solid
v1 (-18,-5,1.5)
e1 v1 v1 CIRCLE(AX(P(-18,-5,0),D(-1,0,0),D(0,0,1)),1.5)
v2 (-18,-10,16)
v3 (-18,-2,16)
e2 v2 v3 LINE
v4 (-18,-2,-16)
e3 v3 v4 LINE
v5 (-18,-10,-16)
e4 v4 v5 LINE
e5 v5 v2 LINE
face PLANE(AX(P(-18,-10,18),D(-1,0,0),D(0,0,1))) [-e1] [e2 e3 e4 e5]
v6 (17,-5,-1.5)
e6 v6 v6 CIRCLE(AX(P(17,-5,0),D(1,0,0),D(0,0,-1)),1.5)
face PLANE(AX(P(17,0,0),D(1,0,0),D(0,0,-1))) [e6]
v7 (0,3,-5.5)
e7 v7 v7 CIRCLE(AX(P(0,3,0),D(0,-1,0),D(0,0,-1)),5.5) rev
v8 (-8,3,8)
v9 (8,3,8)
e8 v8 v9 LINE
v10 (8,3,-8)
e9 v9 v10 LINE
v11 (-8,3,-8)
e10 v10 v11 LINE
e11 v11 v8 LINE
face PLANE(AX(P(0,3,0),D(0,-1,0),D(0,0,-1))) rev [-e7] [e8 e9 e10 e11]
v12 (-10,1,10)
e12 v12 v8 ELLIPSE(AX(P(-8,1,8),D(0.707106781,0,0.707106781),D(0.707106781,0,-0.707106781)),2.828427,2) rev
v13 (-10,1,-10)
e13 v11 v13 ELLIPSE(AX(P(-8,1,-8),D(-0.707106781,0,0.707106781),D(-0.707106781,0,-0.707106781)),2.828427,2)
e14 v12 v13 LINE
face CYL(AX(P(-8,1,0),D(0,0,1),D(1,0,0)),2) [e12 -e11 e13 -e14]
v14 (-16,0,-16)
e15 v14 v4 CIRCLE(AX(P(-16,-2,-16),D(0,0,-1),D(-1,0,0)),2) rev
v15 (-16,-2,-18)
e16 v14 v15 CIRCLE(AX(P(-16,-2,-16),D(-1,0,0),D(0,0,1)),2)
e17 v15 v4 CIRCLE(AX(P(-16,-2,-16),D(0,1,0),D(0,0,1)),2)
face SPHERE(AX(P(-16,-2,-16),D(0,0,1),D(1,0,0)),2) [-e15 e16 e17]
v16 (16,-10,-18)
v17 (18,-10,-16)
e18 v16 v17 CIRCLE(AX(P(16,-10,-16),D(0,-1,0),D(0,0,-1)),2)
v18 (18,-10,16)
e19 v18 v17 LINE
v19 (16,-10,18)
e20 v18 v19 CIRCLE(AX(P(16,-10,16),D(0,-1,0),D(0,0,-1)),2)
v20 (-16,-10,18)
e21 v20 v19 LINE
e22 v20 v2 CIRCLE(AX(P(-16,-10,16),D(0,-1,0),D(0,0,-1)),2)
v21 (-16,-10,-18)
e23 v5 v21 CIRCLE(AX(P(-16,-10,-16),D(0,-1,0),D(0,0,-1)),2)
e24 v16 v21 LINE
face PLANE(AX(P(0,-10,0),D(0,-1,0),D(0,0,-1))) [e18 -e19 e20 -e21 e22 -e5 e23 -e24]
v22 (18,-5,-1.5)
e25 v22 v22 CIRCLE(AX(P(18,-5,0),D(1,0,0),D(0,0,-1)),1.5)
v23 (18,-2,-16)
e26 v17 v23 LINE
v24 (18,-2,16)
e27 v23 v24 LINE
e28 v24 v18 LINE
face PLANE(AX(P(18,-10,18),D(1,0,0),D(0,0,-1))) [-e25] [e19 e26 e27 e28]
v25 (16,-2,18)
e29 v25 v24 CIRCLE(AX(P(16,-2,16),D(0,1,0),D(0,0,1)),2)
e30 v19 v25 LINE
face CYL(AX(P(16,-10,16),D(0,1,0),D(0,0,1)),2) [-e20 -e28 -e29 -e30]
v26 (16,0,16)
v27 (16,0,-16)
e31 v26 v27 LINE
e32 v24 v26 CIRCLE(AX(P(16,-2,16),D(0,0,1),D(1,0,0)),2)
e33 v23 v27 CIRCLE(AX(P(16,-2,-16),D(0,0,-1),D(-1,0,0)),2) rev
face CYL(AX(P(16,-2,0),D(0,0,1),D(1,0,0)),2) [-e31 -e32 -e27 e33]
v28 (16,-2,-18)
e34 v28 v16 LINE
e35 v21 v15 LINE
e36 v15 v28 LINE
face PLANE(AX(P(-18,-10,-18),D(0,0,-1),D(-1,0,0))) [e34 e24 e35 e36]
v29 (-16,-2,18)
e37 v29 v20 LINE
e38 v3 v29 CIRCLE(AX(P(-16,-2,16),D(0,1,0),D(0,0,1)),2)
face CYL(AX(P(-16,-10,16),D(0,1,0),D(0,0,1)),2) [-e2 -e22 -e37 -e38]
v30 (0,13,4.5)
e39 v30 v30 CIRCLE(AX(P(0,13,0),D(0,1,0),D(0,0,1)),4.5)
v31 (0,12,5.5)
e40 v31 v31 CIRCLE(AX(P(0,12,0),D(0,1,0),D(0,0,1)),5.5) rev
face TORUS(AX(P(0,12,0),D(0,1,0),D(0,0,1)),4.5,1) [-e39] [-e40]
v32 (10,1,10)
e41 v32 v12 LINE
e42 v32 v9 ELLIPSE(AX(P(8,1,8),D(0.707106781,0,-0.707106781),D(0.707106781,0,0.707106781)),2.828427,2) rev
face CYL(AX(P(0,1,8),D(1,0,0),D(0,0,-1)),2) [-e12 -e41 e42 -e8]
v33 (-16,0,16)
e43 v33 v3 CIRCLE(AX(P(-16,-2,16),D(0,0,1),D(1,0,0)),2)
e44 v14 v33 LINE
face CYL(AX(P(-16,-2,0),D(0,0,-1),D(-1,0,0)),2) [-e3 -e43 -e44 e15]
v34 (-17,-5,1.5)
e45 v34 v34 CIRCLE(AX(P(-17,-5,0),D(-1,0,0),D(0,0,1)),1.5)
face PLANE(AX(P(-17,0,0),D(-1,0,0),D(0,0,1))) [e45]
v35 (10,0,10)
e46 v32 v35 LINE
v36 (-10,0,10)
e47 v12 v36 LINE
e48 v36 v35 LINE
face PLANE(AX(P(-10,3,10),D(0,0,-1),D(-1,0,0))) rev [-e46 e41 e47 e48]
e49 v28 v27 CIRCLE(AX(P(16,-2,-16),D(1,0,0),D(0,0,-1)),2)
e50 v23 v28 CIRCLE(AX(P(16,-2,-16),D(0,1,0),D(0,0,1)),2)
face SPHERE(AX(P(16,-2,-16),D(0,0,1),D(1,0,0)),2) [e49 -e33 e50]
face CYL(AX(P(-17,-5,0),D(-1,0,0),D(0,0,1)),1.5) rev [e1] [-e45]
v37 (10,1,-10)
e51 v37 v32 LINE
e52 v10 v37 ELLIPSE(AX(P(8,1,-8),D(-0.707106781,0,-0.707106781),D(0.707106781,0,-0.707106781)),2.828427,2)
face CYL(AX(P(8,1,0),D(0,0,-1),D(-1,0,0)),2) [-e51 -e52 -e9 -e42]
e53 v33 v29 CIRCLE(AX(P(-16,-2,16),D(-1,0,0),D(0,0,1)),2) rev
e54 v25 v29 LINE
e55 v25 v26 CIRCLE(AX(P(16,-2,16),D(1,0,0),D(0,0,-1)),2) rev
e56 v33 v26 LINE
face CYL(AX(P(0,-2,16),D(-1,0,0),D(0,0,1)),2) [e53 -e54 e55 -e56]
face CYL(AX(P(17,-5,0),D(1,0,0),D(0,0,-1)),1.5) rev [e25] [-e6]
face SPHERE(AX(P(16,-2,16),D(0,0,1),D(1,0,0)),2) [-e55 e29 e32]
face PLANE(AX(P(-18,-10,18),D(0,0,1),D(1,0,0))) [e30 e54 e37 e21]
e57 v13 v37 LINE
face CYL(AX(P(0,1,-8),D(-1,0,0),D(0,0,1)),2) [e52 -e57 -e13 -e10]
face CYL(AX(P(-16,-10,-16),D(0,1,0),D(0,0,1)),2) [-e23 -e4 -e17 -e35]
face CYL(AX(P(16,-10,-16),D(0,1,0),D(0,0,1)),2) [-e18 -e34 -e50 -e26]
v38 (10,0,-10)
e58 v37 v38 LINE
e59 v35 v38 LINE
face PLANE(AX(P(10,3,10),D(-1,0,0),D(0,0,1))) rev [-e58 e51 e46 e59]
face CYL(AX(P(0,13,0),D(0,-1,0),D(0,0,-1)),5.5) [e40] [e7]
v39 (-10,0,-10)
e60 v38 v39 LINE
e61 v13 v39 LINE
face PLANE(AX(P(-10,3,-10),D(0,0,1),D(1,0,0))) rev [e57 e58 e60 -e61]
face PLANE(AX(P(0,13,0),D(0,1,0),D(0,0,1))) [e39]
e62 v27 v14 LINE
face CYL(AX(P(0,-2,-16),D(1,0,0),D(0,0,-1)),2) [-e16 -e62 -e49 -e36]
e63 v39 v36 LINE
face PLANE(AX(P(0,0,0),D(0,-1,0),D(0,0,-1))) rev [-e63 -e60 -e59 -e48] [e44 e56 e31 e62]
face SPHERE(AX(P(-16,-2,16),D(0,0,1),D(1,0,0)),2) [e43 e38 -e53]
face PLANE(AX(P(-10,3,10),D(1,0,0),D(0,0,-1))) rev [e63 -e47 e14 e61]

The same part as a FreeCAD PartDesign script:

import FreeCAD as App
import Part
import Sketcher
from FreeCAD import Vector


def edges_at(feature, points):
    """Names of the edges that pass closest to the given points."""
    edges = feature.Shape.Edges
    near = lambda p: min(range(len(edges)), key=lambda i: edges[i].distToShape(Part.Vertex(*p))[0])
    return sorted({f"Edge{near(p) + 1}" for p in points})


def add_polygon(sketch, points):
    """Adds a closed chain of lines whose ends are joined by coincident constraints."""
    first, n = sketch.GeometryCount, len(points)
    for a, b in zip(points, points[1:] + points[:1]):
        sketch.addGeometry(Part.LineSegment(App.Vector(*a, 0), App.Vector(*b, 0)), False)
    for i in range(n):
        sketch.addConstraint(Sketcher.Constraint("Coincident", first + i, 2, first + (i + 1) % n, 1))

doc = App.newDocument("Part")
body = doc.addObject("PartDesign::Body", "Body")

# Sketch on XZ plane
sketch1 = doc.addObject("Sketcher::SketchObject", "Sketch")
body.addObject(sketch1)
sketch1.AttachmentSupport = (doc.XZ_Plane, [""])
sketch1.MapMode = "FlatFace"
add_polygon(sketch1, [(-18, -18), (-18, 18), (18, 18), (18, -18)])  # lines 0-3
sketch1.addConstraint([
    Sketcher.Constraint("Vertical", 0),
    Sketcher.Constraint("Horizontal", 1),
    Sketcher.Constraint("Vertical", 2),
    Sketcher.Constraint("Horizontal", 3),
    Sketcher.Constraint("Symmetric", 0, 2, 2, 2, -1, 1),
    Sketcher.Constraint("Equal", 3, 0),
    Sketcher.Constraint("DistanceX", 1, 1, 1, 2, 36.0),
])
pad1 = doc.addObject("PartDesign::Pad", "Pad")
body.addObject(pad1)
pad1.Profile = sketch1
pad1.Length = 10

# Sketch on XZ plane
sketch2 = doc.addObject("Sketcher::SketchObject", "Sketch001")
body.addObject(sketch2)
sketch2.AttachmentSupport = (doc.XZ_Plane, [""])
sketch2.MapMode = "FlatFace"
add_polygon(sketch2, [(-10, -10), (-10, 10), (10, 10), (10, -10)])  # lines 0-3
sketch2.addConstraint([
    Sketcher.Constraint("Vertical", 0),
    Sketcher.Constraint("Horizontal", 1),
    Sketcher.Constraint("Vertical", 2),
    Sketcher.Constraint("Horizontal", 3),
    Sketcher.Constraint("Symmetric", 0, 2, 2, 2, -1, 1),
    Sketcher.Constraint("Equal", 3, 0),
    Sketcher.Constraint("DistanceX", 1, 1, 1, 2, 20.0),
])
pad2 = doc.addObject("PartDesign::Pad", "Pad001")
body.addObject(pad2)
pad2.Profile = sketch2
pad2.Length = 3
pad2.Reversed = True

# Sketch on XZ plane
sketch3 = doc.addObject("Sketcher::SketchObject", "Sketch002")
body.addObject(sketch3)
sketch3.AttachmentSupport = (doc.XZ_Plane, [""])
sketch3.MapMode = "FlatFace"
sketch3.AttachmentOffset = App.Placement(Vector(0, 0, -3), App.Rotation())
sketch3.addGeometry(Part.Circle(Vector(0, 0, 0), Vector(0, 0, 1), 6), False)
sketch3.addConstraint([
    Sketcher.Constraint("Coincident", 0, 3, -1, 1),
    Sketcher.Constraint("Diameter", 0, 11.0),
])
pad3 = doc.addObject("PartDesign::Pad", "Pad002")
body.addObject(pad3)
pad3.Profile = sketch3
pad3.Length = 10
pad3.Reversed = True

# Sketch on YZ plane
sketch4 = doc.addObject("Sketcher::SketchObject", "Sketch003")
body.addObject(sketch4)
sketch4.AttachmentSupport = (doc.YZ_Plane, [""])
sketch4.MapMode = "FlatFace"
sketch4.AttachmentOffset = App.Placement(Vector(0, 0, -18), App.Rotation())
sketch4.addGeometry(Part.Circle(Vector(-5, 0, 0), Vector(0, 0, 1), 1.5), False)
sketch4.addConstraint([
    Sketcher.Constraint("PointOnObject", 0, 3, -1),
    Sketcher.Constraint("Diameter", 0, 3.0),
    Sketcher.Constraint("DistanceX", 0, 3, -1, 1, 5.0),
])
pocket1 = doc.addObject("PartDesign::Pocket", "Pocket")
body.addObject(pocket1)
pocket1.Profile = sketch4
pocket1.Length = 1
pocket1.Reversed = True

# Sketch on YZ plane
sketch5 = doc.addObject("Sketcher::SketchObject", "Sketch004")
body.addObject(sketch5)
sketch5.AttachmentSupport = (doc.YZ_Plane, [""])
sketch5.MapMode = "FlatFace"
sketch5.AttachmentOffset = App.Placement(Vector(0, 0, 17), App.Rotation())
sketch5.addGeometry(Part.Circle(Vector(-5, 0, 0), Vector(0, 0, 1), 1.5), False)
sketch5.addConstraint([
    Sketcher.Constraint("PointOnObject", 0, 3, -1),
    Sketcher.Constraint("Diameter", 0, 3.0),
    Sketcher.Constraint("DistanceX", 0, 3, -1, 1, 5.0),
])
pocket2 = doc.addObject("PartDesign::Pocket", "Pocket001")
body.addObject(pocket2)
pocket2.Profile = sketch5
pocket2.Length = 1
pocket2.Reversed = True
doc.recompute()

fillet = doc.addObject("PartDesign::Fillet", "Fillet")
body.addObject(fillet)
fillet.Base = (pocket2, edges_at(pocket2, [
    (10, 3, 0),
    (0, 3, -10),
    (-10, 3, 0),
    (0, 3, 10),
    (0, 0, 18),
    (-18, 0, 0),
    (0, 0, -18),
    (18, 0, 0),
    (18, -5, 18),
    (-18, -5, 18),
    (-18, -5, -18),
    (18, -5, -18),
]))
fillet.Radius = 2
doc.recompute()

fillet2 = doc.addObject("PartDesign::Fillet", "Fillet001")
body.addObject(fillet2)
fillet2.Base = (fillet, edges_at(fillet, [(0, 13, 5.5)]))
fillet2.Radius = 1

doc.recompute()
